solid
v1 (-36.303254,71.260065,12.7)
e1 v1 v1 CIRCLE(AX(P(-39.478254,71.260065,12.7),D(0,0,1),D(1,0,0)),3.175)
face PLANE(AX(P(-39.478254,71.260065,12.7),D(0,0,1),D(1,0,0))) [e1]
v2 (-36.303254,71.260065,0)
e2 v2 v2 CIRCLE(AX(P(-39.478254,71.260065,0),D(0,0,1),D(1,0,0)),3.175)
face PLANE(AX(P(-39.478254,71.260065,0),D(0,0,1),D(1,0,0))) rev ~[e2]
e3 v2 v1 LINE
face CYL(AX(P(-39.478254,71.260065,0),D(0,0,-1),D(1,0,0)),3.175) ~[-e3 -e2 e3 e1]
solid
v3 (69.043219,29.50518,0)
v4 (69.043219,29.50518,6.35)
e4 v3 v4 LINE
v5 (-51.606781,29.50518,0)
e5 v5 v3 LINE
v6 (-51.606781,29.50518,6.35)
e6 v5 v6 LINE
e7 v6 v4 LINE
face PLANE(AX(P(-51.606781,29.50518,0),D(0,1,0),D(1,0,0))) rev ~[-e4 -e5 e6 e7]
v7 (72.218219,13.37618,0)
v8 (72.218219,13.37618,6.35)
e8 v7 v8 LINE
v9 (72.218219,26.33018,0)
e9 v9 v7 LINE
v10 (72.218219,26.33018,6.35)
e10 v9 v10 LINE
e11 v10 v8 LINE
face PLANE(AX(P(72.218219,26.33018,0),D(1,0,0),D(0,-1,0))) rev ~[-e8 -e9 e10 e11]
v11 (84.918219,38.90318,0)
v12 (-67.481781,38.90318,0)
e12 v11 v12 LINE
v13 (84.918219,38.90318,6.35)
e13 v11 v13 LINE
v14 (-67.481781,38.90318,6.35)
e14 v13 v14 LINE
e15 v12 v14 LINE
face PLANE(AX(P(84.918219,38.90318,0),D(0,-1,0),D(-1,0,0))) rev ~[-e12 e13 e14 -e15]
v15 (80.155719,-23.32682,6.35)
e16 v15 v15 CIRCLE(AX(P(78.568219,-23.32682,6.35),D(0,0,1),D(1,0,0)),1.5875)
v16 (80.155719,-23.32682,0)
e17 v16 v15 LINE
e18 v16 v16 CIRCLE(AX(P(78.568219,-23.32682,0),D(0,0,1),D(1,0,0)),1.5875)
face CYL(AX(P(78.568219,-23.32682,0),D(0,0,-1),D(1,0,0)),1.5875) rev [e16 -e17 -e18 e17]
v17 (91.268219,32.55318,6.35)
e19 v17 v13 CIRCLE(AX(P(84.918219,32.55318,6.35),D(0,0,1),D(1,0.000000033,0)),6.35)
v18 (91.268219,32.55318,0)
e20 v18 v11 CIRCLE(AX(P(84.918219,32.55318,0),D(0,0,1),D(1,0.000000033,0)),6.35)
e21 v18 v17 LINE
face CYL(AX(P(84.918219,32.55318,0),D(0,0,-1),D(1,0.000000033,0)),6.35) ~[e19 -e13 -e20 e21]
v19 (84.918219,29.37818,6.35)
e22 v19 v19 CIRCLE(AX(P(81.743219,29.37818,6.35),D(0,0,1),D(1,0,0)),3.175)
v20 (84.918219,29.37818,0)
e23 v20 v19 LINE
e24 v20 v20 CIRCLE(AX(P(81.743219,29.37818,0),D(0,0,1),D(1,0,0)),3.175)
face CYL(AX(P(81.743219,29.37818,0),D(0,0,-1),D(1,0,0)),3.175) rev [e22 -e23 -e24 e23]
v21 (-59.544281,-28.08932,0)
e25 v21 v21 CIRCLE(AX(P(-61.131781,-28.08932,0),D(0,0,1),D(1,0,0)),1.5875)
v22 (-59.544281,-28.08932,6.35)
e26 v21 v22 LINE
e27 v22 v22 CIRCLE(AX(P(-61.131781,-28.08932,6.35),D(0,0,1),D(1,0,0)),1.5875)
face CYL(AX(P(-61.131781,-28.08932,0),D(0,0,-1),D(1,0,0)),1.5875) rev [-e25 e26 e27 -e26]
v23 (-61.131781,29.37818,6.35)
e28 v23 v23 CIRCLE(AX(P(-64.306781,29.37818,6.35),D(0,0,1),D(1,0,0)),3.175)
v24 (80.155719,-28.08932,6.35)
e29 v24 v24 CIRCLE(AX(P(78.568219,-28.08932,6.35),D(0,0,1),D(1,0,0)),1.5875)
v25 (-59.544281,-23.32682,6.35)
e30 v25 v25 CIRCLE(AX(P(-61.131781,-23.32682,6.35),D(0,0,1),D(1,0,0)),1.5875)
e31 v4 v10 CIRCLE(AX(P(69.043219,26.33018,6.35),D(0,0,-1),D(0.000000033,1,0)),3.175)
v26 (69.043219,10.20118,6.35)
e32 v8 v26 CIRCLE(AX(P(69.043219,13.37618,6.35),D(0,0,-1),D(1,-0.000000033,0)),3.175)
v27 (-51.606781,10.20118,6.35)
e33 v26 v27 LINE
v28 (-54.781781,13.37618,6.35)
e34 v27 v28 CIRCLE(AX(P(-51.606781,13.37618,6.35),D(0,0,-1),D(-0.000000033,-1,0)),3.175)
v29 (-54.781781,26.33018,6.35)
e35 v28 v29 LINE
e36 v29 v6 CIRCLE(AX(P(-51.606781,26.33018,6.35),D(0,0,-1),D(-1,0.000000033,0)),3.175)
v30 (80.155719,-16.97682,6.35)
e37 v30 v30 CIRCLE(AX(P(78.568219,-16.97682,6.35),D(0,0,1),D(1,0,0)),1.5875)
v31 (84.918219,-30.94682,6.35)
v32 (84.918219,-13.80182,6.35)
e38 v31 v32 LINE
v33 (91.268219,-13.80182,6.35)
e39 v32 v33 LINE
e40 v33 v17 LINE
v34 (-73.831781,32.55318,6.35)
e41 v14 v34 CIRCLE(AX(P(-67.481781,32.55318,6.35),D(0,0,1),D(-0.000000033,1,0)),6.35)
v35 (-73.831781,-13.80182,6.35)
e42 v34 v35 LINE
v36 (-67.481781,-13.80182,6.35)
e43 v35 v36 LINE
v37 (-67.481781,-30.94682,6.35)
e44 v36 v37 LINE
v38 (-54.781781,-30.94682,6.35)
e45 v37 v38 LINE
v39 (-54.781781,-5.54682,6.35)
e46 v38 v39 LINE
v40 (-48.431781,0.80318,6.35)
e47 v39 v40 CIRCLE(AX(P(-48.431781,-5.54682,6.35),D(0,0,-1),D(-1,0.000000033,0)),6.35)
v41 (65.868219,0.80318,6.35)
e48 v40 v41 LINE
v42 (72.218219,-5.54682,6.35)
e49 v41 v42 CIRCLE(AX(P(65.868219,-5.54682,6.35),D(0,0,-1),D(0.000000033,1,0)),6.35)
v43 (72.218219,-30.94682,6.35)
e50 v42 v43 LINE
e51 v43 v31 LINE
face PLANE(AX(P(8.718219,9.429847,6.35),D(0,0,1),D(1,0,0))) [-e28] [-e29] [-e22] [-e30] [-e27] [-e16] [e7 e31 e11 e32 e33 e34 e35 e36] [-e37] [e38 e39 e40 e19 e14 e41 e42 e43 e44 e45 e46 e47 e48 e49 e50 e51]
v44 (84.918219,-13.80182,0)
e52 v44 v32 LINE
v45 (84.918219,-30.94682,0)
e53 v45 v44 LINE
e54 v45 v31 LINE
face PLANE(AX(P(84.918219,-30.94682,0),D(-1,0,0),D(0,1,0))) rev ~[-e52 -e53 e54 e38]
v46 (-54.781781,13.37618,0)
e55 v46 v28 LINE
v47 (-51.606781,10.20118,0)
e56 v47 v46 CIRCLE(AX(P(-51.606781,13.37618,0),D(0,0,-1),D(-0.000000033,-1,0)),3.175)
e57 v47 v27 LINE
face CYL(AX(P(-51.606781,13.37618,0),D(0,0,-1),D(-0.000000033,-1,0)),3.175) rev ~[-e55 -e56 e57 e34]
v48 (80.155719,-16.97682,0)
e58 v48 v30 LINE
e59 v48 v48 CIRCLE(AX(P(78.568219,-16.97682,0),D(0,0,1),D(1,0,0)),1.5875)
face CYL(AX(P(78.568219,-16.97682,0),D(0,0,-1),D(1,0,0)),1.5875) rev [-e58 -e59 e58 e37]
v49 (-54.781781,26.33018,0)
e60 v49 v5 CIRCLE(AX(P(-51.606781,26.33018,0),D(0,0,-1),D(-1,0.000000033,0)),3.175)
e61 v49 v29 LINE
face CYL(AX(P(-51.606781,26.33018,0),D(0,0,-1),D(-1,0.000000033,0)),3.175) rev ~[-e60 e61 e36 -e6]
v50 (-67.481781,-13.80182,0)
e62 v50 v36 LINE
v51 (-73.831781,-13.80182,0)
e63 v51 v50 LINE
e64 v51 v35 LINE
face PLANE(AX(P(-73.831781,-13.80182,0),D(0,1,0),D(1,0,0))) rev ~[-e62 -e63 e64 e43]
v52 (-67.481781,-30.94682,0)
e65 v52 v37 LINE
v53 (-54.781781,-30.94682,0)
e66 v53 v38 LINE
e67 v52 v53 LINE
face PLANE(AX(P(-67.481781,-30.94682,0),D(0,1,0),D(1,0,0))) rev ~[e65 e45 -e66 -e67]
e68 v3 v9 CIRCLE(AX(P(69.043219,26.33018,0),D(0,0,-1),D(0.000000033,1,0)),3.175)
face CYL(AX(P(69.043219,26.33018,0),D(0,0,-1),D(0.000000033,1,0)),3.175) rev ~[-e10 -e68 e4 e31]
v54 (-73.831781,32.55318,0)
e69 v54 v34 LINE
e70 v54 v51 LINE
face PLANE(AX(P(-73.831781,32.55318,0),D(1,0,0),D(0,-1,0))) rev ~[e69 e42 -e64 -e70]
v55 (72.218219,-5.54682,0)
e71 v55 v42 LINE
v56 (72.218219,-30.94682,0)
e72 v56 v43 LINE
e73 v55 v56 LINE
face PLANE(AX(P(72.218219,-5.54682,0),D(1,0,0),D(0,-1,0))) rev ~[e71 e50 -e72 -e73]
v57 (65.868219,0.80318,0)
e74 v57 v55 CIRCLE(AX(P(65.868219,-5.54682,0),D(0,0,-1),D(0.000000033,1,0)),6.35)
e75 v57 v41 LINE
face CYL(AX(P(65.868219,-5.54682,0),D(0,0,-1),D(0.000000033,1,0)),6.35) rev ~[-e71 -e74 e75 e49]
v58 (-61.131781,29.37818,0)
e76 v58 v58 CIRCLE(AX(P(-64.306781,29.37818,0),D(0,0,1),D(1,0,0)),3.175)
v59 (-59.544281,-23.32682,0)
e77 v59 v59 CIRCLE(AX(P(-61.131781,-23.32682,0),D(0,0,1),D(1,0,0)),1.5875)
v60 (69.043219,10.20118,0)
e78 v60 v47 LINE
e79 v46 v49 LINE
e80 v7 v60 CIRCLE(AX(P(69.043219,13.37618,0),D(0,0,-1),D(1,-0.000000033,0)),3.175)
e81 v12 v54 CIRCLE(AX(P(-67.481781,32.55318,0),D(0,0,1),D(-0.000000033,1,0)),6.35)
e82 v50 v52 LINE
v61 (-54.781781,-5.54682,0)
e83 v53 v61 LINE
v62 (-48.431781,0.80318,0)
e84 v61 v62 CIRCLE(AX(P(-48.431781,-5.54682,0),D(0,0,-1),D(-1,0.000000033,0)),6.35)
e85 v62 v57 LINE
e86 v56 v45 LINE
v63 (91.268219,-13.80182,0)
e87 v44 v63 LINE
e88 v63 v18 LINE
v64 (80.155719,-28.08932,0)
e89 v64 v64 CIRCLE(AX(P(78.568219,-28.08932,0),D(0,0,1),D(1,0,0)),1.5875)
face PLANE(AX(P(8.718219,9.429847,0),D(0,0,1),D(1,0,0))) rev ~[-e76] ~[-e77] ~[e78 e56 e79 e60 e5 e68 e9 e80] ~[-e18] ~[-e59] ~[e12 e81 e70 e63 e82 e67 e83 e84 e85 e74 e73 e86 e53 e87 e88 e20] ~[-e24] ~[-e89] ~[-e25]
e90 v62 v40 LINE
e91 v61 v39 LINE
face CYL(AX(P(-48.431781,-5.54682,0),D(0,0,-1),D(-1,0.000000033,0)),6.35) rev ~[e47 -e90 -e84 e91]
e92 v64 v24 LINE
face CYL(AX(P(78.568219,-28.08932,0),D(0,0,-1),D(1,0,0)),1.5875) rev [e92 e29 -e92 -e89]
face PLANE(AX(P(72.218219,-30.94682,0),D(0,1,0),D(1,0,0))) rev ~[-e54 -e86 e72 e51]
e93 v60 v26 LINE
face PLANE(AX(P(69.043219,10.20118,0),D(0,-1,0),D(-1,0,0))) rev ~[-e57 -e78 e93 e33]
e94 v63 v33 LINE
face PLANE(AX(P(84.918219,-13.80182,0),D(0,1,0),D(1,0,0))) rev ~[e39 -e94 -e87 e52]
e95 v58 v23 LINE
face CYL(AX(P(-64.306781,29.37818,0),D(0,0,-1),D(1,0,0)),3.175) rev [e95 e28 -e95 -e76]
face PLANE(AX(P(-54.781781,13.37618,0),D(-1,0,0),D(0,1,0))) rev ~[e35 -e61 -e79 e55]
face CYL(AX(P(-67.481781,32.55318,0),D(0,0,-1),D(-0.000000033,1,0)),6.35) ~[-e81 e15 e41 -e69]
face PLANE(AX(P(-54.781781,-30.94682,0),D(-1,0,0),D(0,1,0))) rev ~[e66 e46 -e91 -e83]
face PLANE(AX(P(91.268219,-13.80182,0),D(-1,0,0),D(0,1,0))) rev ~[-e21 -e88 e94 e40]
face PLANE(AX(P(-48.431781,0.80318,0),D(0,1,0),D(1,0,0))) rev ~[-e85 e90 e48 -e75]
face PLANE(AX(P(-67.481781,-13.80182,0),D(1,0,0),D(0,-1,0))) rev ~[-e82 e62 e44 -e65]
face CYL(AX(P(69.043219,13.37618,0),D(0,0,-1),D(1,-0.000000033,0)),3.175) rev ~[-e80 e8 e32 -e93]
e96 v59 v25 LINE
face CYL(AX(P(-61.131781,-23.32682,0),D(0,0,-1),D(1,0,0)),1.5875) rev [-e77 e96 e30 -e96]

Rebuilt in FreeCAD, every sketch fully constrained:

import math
import FreeCAD as App
import Part
import Sketcher
Q = App.Units.Quantity

doc = App.newDocument("Part")
body = doc.addObject("PartDesign::Body", "Body")

# Sketch on XY plane
sketch1 = body.newObject("Sketcher::SketchObject", "Sketch")
sketch1.AttachmentSupport = (doc.getObject("XY_Plane"), [""])
sketch1.MapMode = "FlatFace"
sketch1.addGeometry([
    Part.LineSegment(App.Vector(-73.8, 32.6, 0), App.Vector(-73.8, -13.8, 0)),  # 0
    Part.LineSegment(App.Vector(-73.8, -13.8, 0), App.Vector(-67.5, -13.8, 0)),  # 1
    Part.LineSegment(App.Vector(-67.5, -13.8, 0), App.Vector(-67.5, -30.9, 0)),  # 2
    Part.LineSegment(App.Vector(-67.5, -30.9, 0), App.Vector(-54.8, -30.9, 0)),  # 3
    Part.LineSegment(App.Vector(-54.8, -30.9, 0), App.Vector(-54.8, -5.5, 0)),  # 4
    Part.ArcOfCircle(Part.Circle(App.Vector(-48.4, -5.5, 0), App.Vector(0, 0, 1), 6.4), math.radians(90), math.radians(180)),  # 5
    Part.LineSegment(App.Vector(-48.4, 0.8, 0), App.Vector(65.9, 0.8, 0)),  # 6
    Part.ArcOfCircle(Part.Circle(App.Vector(65.9, -5.5, 0), App.Vector(0, 0, 1), 6.4), math.radians(0), math.radians(90)),  # 7
    Part.LineSegment(App.Vector(72.2, -5.5, 0), App.Vector(72.2, -30.9, 0)),  # 8
    Part.LineSegment(App.Vector(72.2, -30.9, 0), App.Vector(84.9, -30.9, 0)),  # 9
    Part.LineSegment(App.Vector(84.9, -30.9, 0), App.Vector(84.9, -13.8, 0)),  # 10
    Part.LineSegment(App.Vector(84.9, -13.8, 0), App.Vector(91.3, -13.8, 0)),  # 11
    Part.LineSegment(App.Vector(91.3, -13.8, 0), App.Vector(91.3, 32.6, 0)),  # 12
    Part.ArcOfCircle(Part.Circle(App.Vector(84.9, 32.6, 0), App.Vector(0, 0, 1), 6.4), math.radians(0), math.radians(90)),  # 13
    Part.LineSegment(App.Vector(84.9, 38.9, 0), App.Vector(-67.5, 38.9, 0)),  # 14
    Part.ArcOfCircle(Part.Circle(App.Vector(-67.5, 32.6, 0), App.Vector(0, 0, 1), 6.4), math.radians(90), math.radians(180)),  # 15
    Part.Circle(App.Vector(-61.1, -28.1, 0), App.Vector(0, 0, 1), 1.6),  # 16
    Part.Circle(App.Vector(-61.1, -23.3, 0), App.Vector(0, 0, 1), 1.6),  # 17
    Part.Circle(App.Vector(78.6, -28.1, 0), App.Vector(0, 0, 1), 1.6),  # 18
    Part.Circle(App.Vector(78.6, -23.3, 0), App.Vector(0, 0, 1), 1.6),  # 19
    Part.Circle(App.Vector(78.6, -17, 0), App.Vector(0, 0, 1), 1.6),  # 20
    Part.Circle(App.Vector(-64.3, 29.4, 0), App.Vector(0, 0, 1), 3.2),  # 21
    Part.LineSegment(App.Vector(-54.8, 13.4, 0), App.Vector(-54.8, 26.3, 0)),  # 22
    Part.ArcOfCircle(Part.Circle(App.Vector(-51.6, 26.3, 0), App.Vector(0, 0, 1), 3.2), math.radians(90), math.radians(180)),  # 23
    Part.LineSegment(App.Vector(-51.6, 29.5, 0), App.Vector(69, 29.5, 0)),  # 24
    Part.ArcOfCircle(Part.Circle(App.Vector(69, 26.3, 0), App.Vector(0, 0, 1), 3.2), math.radians(0), math.radians(90)),  # 25
    Part.LineSegment(App.Vector(72.2, 26.3, 0), App.Vector(72.2, 13.4, 0)),  # 26
    Part.ArcOfCircle(Part.Circle(App.Vector(69, 13.4, 0), App.Vector(0, 0, 1), 3.2), math.radians(-90), math.radians(0)),  # 27
    Part.LineSegment(App.Vector(69, 10.2, 0), App.Vector(-51.6, 10.2, 0)),  # 28
    Part.ArcOfCircle(Part.Circle(App.Vector(-51.6, 13.4, 0), App.Vector(0, 0, 1), 3.2), math.radians(-180), math.radians(-90)),  # 29
    Part.Circle(App.Vector(81.7, 29.4, 0), App.Vector(0, 0, 1), 3.2),  # 30
], False)
sketch1.addConstraint([
    Sketcher.Constraint("Coincident", 0, 2, 1, 1),
    Sketcher.Constraint("Coincident", 1, 2, 2, 1),
    Sketcher.Constraint("Coincident", 2, 2, 3, 1),
    Sketcher.Constraint("Coincident", 3, 2, 4, 1),
    Sketcher.Constraint("Tangent", 4, 2, 5, 2),
    Sketcher.Constraint("Tangent", 5, 1, 6, 1),
    Sketcher.Constraint("Tangent", 6, 2, 7, 2),
    Sketcher.Constraint("Tangent", 7, 1, 8, 1),
    Sketcher.Constraint("Coincident", 8, 2, 9, 1),
    Sketcher.Constraint("Coincident", 9, 2, 10, 1),
    Sketcher.Constraint("Coincident", 10, 2, 11, 1),
    Sketcher.Constraint("Coincident", 11, 2, 12, 1),
    Sketcher.Constraint("Tangent", 12, 2, 13, 1),
    Sketcher.Constraint("Tangent", 13, 2, 14, 1),
    Sketcher.Constraint("Tangent", 14, 2, 15, 1),
    Sketcher.Constraint("Tangent", 15, 2, 0, 1),
    Sketcher.Constraint("Tangent", 22, 2, 23, 2),
    Sketcher.Constraint("Tangent", 23, 1, 24, 1),
    Sketcher.Constraint("Tangent", 24, 2, 25, 2),
    Sketcher.Constraint("Tangent", 25, 1, 26, 1),
    Sketcher.Constraint("Tangent", 26, 2, 27, 2),
    Sketcher.Constraint("Tangent", 27, 1, 28, 1),
    Sketcher.Constraint("Tangent", 28, 2, 29, 2),
    Sketcher.Constraint("Tangent", 29, 1, 22, 1),
    Sketcher.Constraint("Vertical", 0),
    Sketcher.Constraint("Horizontal", 1),
    Sketcher.Constraint("Vertical", 2),
    Sketcher.Constraint("Horizontal", 3),
    Sketcher.Constraint("Vertical", 4),
    Sketcher.Constraint("Horizontal", 6),
    Sketcher.Constraint("Vertical", 8),
    Sketcher.Constraint("Horizontal", 9),
    Sketcher.Constraint("Vertical", 10),
    Sketcher.Constraint("Horizontal", 11),
    Sketcher.Constraint("Vertical", 12),
    Sketcher.Constraint("Horizontal", 14),
    Sketcher.Constraint("Vertical", 22),
    Sketcher.Constraint("Horizontal", 24),
    Sketcher.Constraint("Vertical", 26),
    Sketcher.Constraint("Horizontal", 28),
    Sketcher.Constraint("Equal", 5, 7),
    Sketcher.Constraint("Equal", 7, 13),
    Sketcher.Constraint("Equal", 13, 15),
    Sketcher.Constraint("Equal", 16, 17),
    Sketcher.Constraint("Equal", 17, 18),
    Sketcher.Constraint("Equal", 18, 19),
    Sketcher.Constraint("Equal", 19, 20),
    Sketcher.Constraint("Equal", 21, 23),
    Sketcher.Constraint("Equal", 23, 25),
    Sketcher.Constraint("Equal", 25, 27),
    Sketcher.Constraint("Equal", 27, 29),
    Sketcher.Constraint("Equal", 29, 30),
    Sketcher.Constraint("Horizontal", 16, 3, 18, 3),
    Sketcher.Constraint("Horizontal", 17, 3, 19, 3),
    Sketcher.Constraint("Horizontal", 21, 3, 30, 3),
    Sketcher.Constraint("Horizontal", 3, 2, 8, 2),
    Sketcher.Constraint("Horizontal", 1, 2, 10, 2),
    Sketcher.Constraint("Vertical", 16, 3, 17, 3),
    Sketcher.Constraint("Vertical", 18, 3, 19, 3),
    Sketcher.Constraint("Vertical", 19, 3, 20, 3),
    Sketcher.Constraint("Vertical", 15, 3, 1, 2),
    Sketcher.Constraint("Vertical", 13, 3, 9, 2),
    Sketcher.Constraint("Vertical", 4, 2, 22, 2),
    Sketcher.Constraint("Vertical", 8, 2, 25, 1),
    Sketcher.Constraint("Equal", 3, 9),
    Sketcher.Constraint("Diameter", 21, Q("0.25 in")),
    Sketcher.Constraint("DistanceX", 14, 2, 14, 1, Q("6 in")),
    Sketcher.Constraint("DistanceY", 4, 1, 4, 2, Q("1 in")),
    Sketcher.Constraint("Radius", 5, Q("0.25 in")),
    Sketcher.Constraint("Diameter", 16, Q("0.125 in")),
    Sketcher.Constraint("DistanceX", 3, 1, 3, 2, Q("0.5 in")),
    Sketcher.Constraint("DistanceX", 16, 3, 7, 3, Q("5 in")),
    Sketcher.Constraint("DistanceX", 5, 3, 18, 3, Q("5 in")),
    Sketcher.Constraint("DistanceY", 22, 1, 22, 2, Q("0.51 in")),
    Sketcher.Constraint("DistanceY", 7, 3, 13, 3, Q("1.5 in")),
    Sketcher.Constraint("DistanceY", 17, 3, 5, 3, Q("0.7 in")),
    Sketcher.Constraint("DistanceX", 21, 3, 23, 3, Q("0.5 in")),
    Sketcher.Constraint("DistanceX", 25, 3, 30, 3, Q("0.5 in")),
    Sketcher.Constraint("DistanceY", 0, 2, 21, 3, Q("1.7 in")),
    Sketcher.Constraint("DistanceY", 20, 3, 6, 2, Q("0.7 in")),
    Sketcher.Constraint("DistanceY", 0, 2, 0, 1, Q("1.825 in")),
    Sketcher.Constraint("DistanceY", 23, 3, 21, 3, Q("0.12 in")),
    Sketcher.Constraint("DistanceY", 16, 3, 17, 3, Q("0.1875 in")),
    Sketcher.Constraint("DistanceX", 5, 3, -1, 1, 48.431781),
    Sketcher.Constraint("DistanceY", 5, 3, -1, 1, 5.54682),
])
pad1 = body.newObject("PartDesign::Pad", "Pad")
pad1.Profile = sketch1
pad1.Length = Q("0.25 in")
body2 = doc.addObject("PartDesign::Body", "Body001")

# Sketch on XY plane
sketch2 = body2.newObject("Sketcher::SketchObject", "Sketch001")
sketch2.AttachmentSupport = (doc.getObject("XY_Plane001"), [""])
sketch2.MapMode = "FlatFace"
sketch2.addGeometry(Part.Circle(App.Vector(-39.5, 71.3, 0), App.Vector(0, 0, 1), 3.2), False)
sketch2.addConstraint([
    Sketcher.Constraint("Diameter", 0, Q("0.25 in")),
    Sketcher.Constraint("DistanceX", 0, 3, -1, 1, 39.478254),
    Sketcher.Constraint("DistanceY", -1, 1, 0, 3, 71.260065),
])
pad2 = body2.newObject("PartDesign::Pad", "Pad001")
pad2.Profile = sketch2
pad2.Length = Q("0.5 in")

doc.recompute()
